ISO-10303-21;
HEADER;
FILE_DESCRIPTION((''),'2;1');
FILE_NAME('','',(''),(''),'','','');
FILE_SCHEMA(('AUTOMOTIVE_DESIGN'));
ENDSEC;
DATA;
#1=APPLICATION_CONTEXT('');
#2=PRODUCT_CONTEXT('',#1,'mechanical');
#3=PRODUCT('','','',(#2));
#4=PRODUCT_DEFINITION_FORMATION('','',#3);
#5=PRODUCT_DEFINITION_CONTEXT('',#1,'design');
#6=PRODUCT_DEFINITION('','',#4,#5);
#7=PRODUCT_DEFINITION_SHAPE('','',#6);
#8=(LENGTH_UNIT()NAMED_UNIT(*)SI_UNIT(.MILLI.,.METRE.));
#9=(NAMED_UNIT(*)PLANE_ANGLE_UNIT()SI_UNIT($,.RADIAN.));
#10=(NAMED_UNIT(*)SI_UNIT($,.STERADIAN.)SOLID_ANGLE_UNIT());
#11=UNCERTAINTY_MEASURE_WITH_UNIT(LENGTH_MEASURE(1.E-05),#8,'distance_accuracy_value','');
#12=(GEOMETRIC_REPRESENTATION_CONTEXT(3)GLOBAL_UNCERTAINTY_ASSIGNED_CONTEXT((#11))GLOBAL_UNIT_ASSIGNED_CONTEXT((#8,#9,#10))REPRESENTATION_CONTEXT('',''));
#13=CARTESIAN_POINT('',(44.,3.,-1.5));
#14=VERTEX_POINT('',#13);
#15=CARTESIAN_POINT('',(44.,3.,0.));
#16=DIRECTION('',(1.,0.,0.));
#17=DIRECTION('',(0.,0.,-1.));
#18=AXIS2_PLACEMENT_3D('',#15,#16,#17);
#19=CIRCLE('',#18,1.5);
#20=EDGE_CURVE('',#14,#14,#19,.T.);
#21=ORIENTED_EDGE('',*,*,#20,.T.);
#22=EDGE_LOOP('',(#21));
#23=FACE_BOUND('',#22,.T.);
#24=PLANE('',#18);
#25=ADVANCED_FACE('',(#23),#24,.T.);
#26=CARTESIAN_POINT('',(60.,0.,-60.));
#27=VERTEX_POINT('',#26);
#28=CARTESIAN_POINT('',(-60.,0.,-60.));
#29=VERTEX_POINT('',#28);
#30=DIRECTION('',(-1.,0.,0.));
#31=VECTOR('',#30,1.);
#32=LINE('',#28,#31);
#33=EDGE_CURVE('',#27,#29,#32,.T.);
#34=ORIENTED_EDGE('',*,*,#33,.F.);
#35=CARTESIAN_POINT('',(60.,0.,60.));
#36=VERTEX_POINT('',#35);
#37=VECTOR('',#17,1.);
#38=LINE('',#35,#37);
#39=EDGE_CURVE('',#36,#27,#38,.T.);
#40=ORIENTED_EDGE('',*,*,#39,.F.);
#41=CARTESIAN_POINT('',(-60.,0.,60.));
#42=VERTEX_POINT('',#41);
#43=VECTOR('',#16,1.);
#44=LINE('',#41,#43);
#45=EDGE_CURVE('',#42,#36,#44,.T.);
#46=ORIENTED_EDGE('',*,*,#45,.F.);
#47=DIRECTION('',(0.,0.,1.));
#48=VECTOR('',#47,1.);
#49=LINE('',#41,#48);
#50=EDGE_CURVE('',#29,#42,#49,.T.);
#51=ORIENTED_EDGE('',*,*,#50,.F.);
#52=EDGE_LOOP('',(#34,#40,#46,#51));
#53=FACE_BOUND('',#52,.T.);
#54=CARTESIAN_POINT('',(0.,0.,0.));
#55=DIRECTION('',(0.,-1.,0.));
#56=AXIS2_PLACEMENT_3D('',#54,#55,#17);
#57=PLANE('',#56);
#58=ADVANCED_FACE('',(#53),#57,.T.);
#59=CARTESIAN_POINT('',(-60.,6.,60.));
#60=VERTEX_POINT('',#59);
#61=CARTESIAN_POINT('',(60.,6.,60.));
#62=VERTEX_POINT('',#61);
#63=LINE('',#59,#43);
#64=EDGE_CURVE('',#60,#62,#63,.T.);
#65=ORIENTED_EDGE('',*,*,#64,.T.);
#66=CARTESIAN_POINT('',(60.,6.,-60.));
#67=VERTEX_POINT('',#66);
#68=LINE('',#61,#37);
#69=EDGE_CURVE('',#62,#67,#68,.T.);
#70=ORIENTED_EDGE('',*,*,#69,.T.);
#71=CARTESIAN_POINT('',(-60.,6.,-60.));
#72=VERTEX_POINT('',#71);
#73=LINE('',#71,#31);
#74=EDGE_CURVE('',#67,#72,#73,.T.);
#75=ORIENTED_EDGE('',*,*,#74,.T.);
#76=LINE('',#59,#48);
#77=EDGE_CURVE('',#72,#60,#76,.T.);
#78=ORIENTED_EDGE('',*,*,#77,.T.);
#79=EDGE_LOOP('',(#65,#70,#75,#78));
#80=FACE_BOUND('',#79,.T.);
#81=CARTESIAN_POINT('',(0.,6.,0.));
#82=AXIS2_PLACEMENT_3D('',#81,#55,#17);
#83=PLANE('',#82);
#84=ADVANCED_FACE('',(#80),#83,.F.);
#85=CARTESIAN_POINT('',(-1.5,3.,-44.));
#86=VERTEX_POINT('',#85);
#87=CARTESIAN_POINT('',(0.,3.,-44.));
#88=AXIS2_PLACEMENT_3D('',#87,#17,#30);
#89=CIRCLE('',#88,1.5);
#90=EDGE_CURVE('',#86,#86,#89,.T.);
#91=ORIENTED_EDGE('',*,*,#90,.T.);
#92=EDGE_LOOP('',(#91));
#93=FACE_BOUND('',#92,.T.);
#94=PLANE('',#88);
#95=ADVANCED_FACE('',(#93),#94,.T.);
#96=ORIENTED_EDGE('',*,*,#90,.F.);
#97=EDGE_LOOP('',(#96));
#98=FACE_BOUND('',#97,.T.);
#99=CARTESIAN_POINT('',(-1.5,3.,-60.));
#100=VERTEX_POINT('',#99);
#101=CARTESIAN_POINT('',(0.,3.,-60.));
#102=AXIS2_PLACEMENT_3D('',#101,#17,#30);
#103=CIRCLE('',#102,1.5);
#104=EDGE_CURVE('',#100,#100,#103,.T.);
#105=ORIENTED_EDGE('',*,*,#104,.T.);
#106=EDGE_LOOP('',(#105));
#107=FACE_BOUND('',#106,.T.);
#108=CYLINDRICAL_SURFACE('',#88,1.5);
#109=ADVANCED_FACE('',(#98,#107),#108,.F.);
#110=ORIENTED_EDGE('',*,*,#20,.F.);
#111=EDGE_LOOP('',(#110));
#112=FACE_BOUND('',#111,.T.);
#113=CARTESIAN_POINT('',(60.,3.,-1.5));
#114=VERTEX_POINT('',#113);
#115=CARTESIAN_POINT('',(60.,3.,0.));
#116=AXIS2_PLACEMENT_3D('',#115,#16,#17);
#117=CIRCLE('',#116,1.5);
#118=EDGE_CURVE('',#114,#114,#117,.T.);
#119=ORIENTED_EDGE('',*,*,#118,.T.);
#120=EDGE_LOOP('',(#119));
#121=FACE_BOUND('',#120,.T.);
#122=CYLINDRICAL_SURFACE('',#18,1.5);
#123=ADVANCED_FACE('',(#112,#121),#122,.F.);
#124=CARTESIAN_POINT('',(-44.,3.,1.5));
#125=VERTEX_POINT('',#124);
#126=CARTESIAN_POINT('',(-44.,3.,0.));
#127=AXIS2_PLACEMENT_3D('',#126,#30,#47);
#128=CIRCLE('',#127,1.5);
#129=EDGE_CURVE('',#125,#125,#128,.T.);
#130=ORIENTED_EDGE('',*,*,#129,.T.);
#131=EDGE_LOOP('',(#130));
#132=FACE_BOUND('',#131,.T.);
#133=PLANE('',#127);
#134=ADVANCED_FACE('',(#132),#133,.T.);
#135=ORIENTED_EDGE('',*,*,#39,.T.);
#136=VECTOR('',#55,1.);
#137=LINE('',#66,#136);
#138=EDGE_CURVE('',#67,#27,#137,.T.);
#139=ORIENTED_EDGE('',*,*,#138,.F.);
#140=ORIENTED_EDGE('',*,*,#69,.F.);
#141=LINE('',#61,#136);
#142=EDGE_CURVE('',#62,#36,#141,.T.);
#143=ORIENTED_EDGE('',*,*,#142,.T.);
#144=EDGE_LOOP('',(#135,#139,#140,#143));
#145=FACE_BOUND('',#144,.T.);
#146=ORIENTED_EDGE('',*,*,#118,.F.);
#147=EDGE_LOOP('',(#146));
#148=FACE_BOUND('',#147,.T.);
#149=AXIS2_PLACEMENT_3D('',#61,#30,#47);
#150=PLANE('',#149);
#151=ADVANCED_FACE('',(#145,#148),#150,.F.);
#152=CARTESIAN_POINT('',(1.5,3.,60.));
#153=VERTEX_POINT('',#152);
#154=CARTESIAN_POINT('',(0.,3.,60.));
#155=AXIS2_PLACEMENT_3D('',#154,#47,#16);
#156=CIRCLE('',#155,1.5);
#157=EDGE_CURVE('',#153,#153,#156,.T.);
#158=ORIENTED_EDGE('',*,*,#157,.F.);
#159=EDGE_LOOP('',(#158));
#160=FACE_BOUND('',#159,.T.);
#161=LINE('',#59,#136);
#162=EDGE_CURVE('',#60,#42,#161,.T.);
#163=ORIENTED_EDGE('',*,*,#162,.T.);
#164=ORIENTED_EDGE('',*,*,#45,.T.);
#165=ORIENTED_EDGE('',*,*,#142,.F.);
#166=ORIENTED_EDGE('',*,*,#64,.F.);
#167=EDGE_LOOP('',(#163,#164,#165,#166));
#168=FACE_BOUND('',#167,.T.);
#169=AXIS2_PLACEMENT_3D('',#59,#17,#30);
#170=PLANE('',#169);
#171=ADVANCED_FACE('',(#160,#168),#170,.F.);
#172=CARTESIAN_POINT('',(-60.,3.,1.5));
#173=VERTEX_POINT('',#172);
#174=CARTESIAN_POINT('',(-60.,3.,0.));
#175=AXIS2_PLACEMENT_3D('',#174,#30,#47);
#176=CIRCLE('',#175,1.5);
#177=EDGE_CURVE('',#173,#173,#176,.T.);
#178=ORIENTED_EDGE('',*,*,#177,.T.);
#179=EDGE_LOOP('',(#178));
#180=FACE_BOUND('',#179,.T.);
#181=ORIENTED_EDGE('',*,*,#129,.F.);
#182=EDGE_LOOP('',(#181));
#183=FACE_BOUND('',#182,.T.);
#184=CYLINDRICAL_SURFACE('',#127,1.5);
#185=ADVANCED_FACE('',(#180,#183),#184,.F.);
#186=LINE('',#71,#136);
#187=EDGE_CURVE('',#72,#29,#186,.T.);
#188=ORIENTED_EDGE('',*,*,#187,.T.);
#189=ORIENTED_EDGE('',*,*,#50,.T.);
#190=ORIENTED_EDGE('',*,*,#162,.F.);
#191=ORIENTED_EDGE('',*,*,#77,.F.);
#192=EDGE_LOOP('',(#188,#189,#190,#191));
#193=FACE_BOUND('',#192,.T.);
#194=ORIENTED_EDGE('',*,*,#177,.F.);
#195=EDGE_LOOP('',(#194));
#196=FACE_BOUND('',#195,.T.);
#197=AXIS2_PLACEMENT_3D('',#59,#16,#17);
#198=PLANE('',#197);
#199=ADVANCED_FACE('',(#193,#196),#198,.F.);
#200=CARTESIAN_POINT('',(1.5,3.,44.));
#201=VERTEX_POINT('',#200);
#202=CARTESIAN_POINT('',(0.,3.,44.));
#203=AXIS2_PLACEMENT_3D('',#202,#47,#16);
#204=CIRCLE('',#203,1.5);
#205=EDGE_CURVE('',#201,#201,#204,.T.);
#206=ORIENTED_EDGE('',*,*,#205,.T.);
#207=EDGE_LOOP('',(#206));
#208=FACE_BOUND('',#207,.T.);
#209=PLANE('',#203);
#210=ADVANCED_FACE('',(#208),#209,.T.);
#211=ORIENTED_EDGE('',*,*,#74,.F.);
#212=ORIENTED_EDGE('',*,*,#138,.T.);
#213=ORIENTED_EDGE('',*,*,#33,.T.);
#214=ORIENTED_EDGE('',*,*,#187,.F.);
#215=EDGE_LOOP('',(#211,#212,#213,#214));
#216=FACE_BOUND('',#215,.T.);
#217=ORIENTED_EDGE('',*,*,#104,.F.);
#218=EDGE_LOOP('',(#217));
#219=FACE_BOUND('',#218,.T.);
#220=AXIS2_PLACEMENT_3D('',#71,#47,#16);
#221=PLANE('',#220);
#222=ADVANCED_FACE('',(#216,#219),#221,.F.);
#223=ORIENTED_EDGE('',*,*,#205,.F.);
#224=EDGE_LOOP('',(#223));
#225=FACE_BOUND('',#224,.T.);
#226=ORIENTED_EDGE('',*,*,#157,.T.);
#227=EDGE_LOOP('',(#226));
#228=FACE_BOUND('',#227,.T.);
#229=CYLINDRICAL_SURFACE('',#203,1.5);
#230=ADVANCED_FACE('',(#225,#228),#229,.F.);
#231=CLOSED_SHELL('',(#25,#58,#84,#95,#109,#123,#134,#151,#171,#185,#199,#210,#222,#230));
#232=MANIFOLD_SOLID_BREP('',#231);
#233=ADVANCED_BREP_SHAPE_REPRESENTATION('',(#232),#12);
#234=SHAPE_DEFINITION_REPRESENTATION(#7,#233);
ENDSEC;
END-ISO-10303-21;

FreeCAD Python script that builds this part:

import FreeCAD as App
import Part
import Sketcher
from FreeCAD import Vector


def add_polygon(sketch, points):
    """Adds a closed chain of lines whose ends are joined by coincident constraints."""
    first, n = sketch.GeometryCount, len(points)
    for a, b in zip(points, points[1:] + points[:1]):
        sketch.addGeometry(Part.LineSegment(App.Vector(*a, 0), App.Vector(*b, 0)), False)
    for i in range(n):
        sketch.addConstraint(Sketcher.Constraint("Coincident", first + i, 2, first + (i + 1) % n, 1))

doc = App.newDocument("Part")
params = doc.addObject("Spreadsheet::Sheet", "Params")
for row, (alias, value) in enumerate([
    ("sketch1_width", "120 mm"),
    ("pad1_length", "6 mm"),
    ("sketch2_diameter", "3 mm"),
    ("pocket1_length", "16 mm"),
    ("sketch3_diameter", "3 mm"),
    ("pocket2_length", "16 mm"),
    ("sketch4_diameter", "3 mm"),
    ("pocket3_length", "16 mm"),
    ("sketch5_diameter", "3 mm"),
    ("pocket4_length", "16 mm"),
], start=1):
    params.set(f"A{row}", alias)
    params.set(f"B{row}", "=" + value)
    params.setAlias(f"B{row}", alias)

body = doc.addObject("PartDesign::Body", "Body")

sketch1 = body.newObject("Sketcher::SketchObject", "Sketch")
sketch1.AttachmentSupport = (doc.getObject("XZ_Plane"), [""])
sketch1.MapMode = "FlatFace"
add_polygon(sketch1, [(-60, -60), (-60, 60), (60, 60), (60, -60)])
sketch1.addConstraint(Sketcher.Constraint("Vertical", 0))
sketch1.addConstraint(Sketcher.Constraint("Horizontal", 1))
sketch1.addConstraint(Sketcher.Constraint("Vertical", 2))
sketch1.addConstraint(Sketcher.Constraint("Horizontal", 3))
sketch1.addConstraint(Sketcher.Constraint("Symmetric", 0, 2, 2, 2, -1, 1))
sketch1.addConstraint(Sketcher.Constraint("Equal", 3, 0))
sketch1.addConstraint(Sketcher.Constraint("DistanceX", 1, 1, 1, 2, 120.0))
sketch1.setExpression("Constraints[10]", "Params.sketch1_width")
pad1 = body.newObject("PartDesign::Pad", "Pad")
pad1.Profile = sketch1
pad1.setExpression("Length", "Params.pad1_length")
pad1.Reversed = True

sketch2 = body.newObject("Sketcher::SketchObject", "Sketch001")
sketch2.AttachmentSupport = (doc.getObject("YZ_Plane"), [""])
sketch2.MapMode = "FlatFace"
sketch2.AttachmentOffset = App.Placement(Vector(0, 0, 60), App.Rotation())
sketch2.addGeometry(Part.Circle(Vector(3, 0, 0), Vector(0, 0, 1), 1.5), False)
sketch2.addConstraint(Sketcher.Constraint("PointOnObject", 0, 3, -1))
sketch2.addConstraint(Sketcher.Constraint("Diameter", 0, 3.0))
sketch2.addConstraint(Sketcher.Constraint("DistanceX", -1, 1, 0, 3, 3.0))
sketch2.setExpression("Constraints[1]", "Params.sketch2_diameter")
pocket1 = body.newObject("PartDesign::Pocket", "Pocket")
pocket1.Profile = sketch2
pocket1.setExpression("Length", "Params.pocket1_length")

sketch3 = body.newObject("Sketcher::SketchObject", "Sketch002")
sketch3.AttachmentSupport = (doc.getObject("XY_Plane"), [""])
sketch3.MapMode = "FlatFace"
sketch3.AttachmentOffset = App.Placement(Vector(0, 0, -60), App.Rotation())
sketch3.addGeometry(Part.Circle(Vector(0, 3, 0), Vector(0, 0, 1), 1.5), False)
sketch3.addConstraint(Sketcher.Constraint("PointOnObject", 0, 3, -2))
sketch3.addConstraint(Sketcher.Constraint("Diameter", 0, 3.0))
sketch3.addConstraint(Sketcher.Constraint("DistanceY", -1, 1, 0, 3, 3.0))
sketch3.setExpression("Constraints[1]", "Params.sketch3_diameter")
pocket2 = body.newObject("PartDesign::Pocket", "Pocket001")
pocket2.Profile = sketch3
pocket2.setExpression("Length", "Params.pocket2_length")
pocket2.Reversed = True

sketch4 = body.newObject("Sketcher::SketchObject", "Sketch003")
sketch4.AttachmentSupport = (doc.getObject("YZ_Plane"), [""])
sketch4.MapMode = "FlatFace"
sketch4.AttachmentOffset = App.Placement(Vector(0, 0, -60), App.Rotation())
sketch4.addGeometry(Part.Circle(Vector(3, 0, 0), Vector(0, 0, 1), 1.5), False)
sketch4.addConstraint(Sketcher.Constraint("PointOnObject", 0, 3, -1))
sketch4.addConstraint(Sketcher.Constraint("Diameter", 0, 3.0))
sketch4.addConstraint(Sketcher.Constraint("DistanceX", -1, 1, 0, 3, 3.0))
sketch4.setExpression("Constraints[1]", "Params.sketch4_diameter")
pocket3 = body.newObject("PartDesign::Pocket", "Pocket002")
pocket3.Profile = sketch4
pocket3.setExpression("Length", "Params.pocket3_length")
pocket3.Reversed = True

sketch5 = body.newObject("Sketcher::SketchObject", "Sketch004")
sketch5.AttachmentSupport = (doc.getObject("XY_Plane"), [""])
sketch5.MapMode = "FlatFace"
sketch5.AttachmentOffset = App.Placement(Vector(0, 0, 60), App.Rotation())
sketch5.addGeometry(Part.Circle(Vector(0, 3, 0), Vector(0, 0, 1), 1.5), False)
sketch5.addConstraint(Sketcher.Constraint("PointOnObject", 0, 3, -2))
sketch5.addConstraint(Sketcher.Constraint("Diameter", 0, 3.0))
sketch5.addConstraint(Sketcher.Constraint("DistanceY", -1, 1, 0, 3, 3.0))
sketch5.setExpression("Constraints[1]", "Params.sketch5_diameter")
pocket4 = body.newObject("PartDesign::Pocket", "Pocket003")
pocket4.Profile = sketch5
pocket4.setExpression("Length", "Params.pocket4_length")

doc.recompute()
